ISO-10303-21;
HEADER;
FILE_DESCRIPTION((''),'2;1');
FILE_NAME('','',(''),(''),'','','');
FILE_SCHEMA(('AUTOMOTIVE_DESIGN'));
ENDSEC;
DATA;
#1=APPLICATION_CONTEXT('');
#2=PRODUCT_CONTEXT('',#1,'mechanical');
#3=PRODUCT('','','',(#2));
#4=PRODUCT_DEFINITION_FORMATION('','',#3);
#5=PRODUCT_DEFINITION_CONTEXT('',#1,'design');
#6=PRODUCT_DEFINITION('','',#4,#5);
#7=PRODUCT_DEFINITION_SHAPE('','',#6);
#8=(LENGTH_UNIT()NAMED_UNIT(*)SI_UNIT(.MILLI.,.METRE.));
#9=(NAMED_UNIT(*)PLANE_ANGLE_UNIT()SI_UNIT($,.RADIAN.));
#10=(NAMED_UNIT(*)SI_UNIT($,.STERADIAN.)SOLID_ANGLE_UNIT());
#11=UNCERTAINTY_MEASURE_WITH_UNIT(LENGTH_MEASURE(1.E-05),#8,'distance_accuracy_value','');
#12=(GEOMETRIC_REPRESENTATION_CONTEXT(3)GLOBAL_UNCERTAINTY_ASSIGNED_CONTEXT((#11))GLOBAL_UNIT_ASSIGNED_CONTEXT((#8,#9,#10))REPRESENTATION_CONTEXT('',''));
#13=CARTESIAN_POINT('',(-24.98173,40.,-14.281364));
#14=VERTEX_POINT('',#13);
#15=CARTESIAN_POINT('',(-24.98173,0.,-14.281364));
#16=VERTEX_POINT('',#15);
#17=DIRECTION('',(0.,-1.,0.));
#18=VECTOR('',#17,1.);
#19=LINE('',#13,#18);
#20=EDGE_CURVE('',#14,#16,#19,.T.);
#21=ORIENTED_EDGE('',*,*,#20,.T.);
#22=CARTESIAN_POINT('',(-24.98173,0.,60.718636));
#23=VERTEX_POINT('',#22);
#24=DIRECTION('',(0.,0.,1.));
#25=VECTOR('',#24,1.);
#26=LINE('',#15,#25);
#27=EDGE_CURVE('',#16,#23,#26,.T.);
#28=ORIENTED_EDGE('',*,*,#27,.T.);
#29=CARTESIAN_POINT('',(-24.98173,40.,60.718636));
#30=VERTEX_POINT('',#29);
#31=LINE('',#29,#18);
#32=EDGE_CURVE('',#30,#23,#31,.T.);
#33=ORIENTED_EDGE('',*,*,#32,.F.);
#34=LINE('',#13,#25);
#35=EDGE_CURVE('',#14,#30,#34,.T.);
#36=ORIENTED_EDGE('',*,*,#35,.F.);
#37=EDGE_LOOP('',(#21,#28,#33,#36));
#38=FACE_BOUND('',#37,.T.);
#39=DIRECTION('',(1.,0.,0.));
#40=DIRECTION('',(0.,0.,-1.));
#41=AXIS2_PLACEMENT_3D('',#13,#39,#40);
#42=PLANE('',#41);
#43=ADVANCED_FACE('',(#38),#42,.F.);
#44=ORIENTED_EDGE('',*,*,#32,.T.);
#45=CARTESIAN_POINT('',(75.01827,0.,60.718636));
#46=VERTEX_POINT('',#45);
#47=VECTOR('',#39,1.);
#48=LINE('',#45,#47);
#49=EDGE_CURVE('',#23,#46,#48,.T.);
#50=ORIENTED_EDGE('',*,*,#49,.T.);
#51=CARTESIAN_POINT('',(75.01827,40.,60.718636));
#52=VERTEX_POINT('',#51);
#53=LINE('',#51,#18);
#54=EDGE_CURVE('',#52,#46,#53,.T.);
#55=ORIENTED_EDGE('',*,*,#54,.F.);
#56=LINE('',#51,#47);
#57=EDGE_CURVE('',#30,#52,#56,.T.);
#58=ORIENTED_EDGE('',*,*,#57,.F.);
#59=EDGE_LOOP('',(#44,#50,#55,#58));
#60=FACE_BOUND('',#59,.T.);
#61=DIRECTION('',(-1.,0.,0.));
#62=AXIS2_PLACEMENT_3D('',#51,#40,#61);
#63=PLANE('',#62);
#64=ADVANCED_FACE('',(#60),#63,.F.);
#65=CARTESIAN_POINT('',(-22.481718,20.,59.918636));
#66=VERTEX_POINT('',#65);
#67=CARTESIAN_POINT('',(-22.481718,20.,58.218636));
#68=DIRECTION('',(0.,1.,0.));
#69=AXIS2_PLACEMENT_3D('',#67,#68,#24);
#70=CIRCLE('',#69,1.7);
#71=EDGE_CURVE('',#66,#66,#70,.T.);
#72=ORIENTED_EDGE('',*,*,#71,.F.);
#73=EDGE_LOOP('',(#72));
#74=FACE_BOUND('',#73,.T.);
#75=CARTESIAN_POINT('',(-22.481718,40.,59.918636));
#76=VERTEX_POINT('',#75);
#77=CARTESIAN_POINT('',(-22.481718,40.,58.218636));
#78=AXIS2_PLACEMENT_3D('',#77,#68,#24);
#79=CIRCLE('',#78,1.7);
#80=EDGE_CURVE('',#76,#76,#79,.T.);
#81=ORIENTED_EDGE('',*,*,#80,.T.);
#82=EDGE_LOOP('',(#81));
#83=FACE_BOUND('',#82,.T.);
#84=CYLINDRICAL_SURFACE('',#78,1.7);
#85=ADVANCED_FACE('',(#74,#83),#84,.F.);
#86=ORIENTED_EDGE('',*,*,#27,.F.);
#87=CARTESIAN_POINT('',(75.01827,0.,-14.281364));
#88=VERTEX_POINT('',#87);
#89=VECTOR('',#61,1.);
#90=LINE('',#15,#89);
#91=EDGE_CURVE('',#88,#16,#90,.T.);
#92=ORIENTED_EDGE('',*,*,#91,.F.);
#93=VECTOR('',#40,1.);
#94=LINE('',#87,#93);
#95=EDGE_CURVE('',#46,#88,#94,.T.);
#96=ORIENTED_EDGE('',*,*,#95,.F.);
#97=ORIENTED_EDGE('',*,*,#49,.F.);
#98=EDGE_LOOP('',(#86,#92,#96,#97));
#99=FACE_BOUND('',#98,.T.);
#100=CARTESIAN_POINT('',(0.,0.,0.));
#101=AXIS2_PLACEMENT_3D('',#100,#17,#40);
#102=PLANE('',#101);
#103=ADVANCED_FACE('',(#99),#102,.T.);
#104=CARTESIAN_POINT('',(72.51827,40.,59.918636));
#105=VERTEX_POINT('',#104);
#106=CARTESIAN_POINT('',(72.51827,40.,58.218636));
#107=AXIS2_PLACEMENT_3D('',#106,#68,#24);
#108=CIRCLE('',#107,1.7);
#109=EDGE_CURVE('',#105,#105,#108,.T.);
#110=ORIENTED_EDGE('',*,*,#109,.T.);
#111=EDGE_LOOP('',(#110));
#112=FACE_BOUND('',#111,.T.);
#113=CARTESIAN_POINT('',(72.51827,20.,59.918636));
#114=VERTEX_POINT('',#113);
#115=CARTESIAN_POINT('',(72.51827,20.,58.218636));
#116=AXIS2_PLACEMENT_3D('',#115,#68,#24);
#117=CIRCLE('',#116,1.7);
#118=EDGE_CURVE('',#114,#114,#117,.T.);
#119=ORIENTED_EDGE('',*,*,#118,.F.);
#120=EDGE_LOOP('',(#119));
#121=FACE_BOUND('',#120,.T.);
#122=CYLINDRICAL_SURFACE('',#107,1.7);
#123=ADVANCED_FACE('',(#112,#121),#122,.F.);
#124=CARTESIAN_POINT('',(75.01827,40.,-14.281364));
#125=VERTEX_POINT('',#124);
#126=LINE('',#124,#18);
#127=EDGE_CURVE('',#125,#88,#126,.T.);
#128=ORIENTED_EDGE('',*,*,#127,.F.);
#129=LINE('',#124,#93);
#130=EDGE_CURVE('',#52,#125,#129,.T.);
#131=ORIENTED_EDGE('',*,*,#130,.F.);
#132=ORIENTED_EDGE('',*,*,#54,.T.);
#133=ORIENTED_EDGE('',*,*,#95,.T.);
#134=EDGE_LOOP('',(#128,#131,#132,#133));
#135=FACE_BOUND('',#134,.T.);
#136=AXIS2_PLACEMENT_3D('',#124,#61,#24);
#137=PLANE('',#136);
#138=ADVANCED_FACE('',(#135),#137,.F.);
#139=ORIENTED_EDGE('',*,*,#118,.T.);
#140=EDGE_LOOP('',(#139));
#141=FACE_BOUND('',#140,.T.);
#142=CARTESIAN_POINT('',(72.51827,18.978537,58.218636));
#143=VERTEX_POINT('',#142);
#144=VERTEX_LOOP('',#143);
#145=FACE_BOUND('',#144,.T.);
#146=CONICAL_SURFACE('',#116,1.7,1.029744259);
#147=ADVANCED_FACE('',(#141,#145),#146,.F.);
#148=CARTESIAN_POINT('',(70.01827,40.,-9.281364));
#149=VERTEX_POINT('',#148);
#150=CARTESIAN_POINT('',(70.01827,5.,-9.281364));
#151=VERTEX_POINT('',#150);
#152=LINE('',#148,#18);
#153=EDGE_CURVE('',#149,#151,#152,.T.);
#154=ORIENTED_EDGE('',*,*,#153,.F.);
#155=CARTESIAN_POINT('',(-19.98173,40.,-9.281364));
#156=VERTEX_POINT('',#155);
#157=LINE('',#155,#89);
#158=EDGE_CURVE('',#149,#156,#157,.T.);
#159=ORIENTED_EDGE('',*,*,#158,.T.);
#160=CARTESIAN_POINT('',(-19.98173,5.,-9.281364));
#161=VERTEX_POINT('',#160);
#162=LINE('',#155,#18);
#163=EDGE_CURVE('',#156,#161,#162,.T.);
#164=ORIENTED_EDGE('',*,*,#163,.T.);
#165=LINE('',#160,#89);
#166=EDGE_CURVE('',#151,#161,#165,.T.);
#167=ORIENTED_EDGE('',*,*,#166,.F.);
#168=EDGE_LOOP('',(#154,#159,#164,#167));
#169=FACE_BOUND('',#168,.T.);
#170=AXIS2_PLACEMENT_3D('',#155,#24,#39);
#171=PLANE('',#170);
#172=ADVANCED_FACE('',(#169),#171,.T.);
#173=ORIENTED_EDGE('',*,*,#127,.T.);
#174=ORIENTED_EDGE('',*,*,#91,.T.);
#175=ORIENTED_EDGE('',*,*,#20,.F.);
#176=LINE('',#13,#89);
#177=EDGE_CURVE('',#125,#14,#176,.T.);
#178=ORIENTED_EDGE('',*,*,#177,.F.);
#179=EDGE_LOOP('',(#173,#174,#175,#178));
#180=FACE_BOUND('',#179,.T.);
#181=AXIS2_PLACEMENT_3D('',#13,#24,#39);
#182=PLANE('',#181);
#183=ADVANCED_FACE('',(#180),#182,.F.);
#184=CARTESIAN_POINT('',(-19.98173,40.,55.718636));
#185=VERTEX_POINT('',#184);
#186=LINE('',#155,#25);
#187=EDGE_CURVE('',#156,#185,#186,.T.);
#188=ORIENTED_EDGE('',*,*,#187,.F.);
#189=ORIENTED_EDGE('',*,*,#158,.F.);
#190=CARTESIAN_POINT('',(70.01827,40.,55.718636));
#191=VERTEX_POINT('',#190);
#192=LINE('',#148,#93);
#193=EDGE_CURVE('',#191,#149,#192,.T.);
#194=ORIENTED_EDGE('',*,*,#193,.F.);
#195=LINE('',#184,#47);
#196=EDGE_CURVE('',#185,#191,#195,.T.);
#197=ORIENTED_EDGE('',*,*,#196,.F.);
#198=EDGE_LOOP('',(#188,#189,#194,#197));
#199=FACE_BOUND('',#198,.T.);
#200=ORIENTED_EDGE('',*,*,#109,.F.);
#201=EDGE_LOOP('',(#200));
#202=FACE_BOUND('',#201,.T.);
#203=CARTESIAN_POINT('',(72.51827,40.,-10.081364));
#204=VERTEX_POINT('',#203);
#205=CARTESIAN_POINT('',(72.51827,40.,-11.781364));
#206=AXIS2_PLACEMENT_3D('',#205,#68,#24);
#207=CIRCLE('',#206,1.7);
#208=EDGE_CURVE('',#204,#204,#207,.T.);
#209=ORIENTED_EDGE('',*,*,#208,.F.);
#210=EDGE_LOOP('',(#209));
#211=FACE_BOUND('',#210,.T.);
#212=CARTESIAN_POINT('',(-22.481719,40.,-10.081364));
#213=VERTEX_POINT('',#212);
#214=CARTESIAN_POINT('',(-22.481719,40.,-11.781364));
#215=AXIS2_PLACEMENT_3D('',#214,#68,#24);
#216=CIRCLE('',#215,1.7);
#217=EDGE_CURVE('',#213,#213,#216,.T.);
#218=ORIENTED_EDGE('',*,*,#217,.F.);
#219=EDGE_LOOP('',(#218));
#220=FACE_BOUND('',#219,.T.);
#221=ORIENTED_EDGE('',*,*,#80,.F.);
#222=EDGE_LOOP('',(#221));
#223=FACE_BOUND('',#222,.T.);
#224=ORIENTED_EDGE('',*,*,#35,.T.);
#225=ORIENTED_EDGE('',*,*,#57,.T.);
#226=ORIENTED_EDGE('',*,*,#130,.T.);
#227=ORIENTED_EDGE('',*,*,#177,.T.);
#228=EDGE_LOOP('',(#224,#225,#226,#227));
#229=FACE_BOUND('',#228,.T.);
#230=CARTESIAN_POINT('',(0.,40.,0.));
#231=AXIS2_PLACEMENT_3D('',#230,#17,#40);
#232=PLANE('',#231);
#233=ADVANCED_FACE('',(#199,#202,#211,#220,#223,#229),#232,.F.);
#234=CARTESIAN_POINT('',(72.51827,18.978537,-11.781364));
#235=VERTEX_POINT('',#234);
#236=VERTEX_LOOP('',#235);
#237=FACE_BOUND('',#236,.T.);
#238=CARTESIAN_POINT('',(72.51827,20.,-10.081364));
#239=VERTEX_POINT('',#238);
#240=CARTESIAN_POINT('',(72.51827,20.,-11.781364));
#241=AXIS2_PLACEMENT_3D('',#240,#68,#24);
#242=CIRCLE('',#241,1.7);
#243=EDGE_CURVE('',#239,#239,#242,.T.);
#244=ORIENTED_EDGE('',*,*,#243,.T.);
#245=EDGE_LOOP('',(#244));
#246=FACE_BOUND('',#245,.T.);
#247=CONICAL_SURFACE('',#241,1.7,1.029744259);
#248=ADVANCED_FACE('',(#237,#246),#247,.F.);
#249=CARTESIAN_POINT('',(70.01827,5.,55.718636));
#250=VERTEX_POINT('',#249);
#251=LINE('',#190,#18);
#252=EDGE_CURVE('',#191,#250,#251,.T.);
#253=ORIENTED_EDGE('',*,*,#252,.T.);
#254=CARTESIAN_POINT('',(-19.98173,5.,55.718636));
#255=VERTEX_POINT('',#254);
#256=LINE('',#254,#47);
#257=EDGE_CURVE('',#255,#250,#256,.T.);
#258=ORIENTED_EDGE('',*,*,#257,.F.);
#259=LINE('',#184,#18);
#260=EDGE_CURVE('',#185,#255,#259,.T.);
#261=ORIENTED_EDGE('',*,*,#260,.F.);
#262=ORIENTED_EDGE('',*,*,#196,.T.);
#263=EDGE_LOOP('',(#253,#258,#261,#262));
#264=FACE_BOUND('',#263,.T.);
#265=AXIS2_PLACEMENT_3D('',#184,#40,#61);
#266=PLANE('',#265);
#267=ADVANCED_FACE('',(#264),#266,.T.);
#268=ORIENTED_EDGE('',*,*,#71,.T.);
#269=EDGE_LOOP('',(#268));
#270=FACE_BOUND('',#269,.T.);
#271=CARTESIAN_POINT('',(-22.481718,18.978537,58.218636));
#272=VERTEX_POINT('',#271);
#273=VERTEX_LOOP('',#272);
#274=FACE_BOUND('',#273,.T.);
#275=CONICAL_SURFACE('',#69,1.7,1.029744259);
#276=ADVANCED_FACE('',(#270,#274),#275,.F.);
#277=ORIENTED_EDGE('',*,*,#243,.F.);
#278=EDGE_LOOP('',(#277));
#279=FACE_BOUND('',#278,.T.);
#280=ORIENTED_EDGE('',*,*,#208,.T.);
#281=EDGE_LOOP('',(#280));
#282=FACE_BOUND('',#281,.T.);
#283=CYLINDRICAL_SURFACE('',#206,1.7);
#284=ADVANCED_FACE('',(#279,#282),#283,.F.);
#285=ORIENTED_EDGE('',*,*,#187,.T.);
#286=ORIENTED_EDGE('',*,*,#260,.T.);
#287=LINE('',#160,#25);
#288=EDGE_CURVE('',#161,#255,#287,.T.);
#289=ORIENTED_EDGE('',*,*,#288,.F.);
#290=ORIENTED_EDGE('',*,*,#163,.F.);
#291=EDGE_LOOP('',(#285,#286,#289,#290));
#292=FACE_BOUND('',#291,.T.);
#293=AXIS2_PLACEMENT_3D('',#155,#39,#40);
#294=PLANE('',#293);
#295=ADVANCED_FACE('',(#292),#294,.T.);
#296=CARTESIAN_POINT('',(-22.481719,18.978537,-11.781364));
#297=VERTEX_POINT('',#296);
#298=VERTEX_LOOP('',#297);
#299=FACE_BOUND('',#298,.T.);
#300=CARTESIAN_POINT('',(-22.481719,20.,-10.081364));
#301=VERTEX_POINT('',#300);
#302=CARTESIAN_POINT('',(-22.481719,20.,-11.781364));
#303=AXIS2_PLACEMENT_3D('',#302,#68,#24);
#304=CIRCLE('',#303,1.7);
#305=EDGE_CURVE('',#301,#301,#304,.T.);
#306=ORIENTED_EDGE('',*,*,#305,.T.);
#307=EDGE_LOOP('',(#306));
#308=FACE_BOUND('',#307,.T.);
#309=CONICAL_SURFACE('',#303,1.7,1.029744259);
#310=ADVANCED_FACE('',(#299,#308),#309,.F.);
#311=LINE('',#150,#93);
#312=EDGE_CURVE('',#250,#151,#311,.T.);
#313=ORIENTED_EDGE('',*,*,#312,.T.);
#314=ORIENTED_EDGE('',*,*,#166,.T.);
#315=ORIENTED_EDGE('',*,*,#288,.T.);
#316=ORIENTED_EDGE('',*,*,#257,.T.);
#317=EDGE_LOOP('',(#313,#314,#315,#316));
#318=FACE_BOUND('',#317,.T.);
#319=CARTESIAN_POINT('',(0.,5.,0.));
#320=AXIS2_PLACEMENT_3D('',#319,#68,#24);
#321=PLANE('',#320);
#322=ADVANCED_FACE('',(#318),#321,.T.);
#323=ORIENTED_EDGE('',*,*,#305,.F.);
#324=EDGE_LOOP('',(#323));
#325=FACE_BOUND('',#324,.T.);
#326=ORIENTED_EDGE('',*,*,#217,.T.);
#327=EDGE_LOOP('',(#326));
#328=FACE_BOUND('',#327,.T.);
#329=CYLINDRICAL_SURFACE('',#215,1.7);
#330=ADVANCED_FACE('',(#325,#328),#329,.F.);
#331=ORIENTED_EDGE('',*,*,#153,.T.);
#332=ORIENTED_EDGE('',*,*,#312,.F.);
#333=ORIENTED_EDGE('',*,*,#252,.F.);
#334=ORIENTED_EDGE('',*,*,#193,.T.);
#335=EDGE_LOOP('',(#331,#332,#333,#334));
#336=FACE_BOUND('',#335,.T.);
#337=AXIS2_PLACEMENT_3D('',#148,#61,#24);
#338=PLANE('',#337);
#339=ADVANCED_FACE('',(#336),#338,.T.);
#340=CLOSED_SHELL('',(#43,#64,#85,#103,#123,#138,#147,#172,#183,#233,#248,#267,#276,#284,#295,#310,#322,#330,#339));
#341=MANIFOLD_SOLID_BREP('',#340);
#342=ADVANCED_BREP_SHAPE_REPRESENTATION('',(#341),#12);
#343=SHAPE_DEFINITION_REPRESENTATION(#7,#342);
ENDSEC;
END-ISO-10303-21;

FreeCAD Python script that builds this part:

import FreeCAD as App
import Part
import Sketcher
from FreeCAD import Vector
Q = App.Units.Quantity

doc = App.newDocument("Part")
params = doc.addObject("Spreadsheet::Sheet", "Params")
for row, (alias, value) in enumerate([
    ("sketch1_width", "100 mm"),
    ("sketch1_height", "75 mm"),
    ("pad1_length", "40 mm"),
    ("sketch2_width", "90 mm"),
    ("sketch2_height", "65 mm"),
    ("sketch3_width", "90 mm"),
    ("sketch3_height", "65 mm"),
    ("pad2_length", "5 mm"),
    ("sketch4_diameter", "3.4 mm"),
    ("hole_diameter", "3.4 mm"),
    ("hole_depth", "20 mm"),
], start=1):
    params.set(f"A{row}", alias)
    params.set(f"B{row}", "=" + value)
    params.setAlias(f"B{row}", alias)

body = doc.addObject("PartDesign::Body", "Body")

# Sketch on XZ plane
sketch1 = doc.addObject("Sketcher::SketchObject", "Sketch")
body.addObject(sketch1)
sketch1.AttachmentSupport = (doc.XZ_Plane, [""])
sketch1.MapMode = "FlatFace"
sketch1.addGeometry([
    Part.LineSegment(Vector(-24.98173, -14.281364, 0), Vector(-24.98173, 60.718636, 0)),
    Part.LineSegment(Vector(-24.98173, 60.718636, 0), Vector(75.01827, 60.718636, 0)),
    Part.LineSegment(Vector(75.01827, 60.718636, 0), Vector(75.01827, -14.281364, 0)),
    Part.LineSegment(Vector(75.01827, -14.281364, 0), Vector(-24.98173, -14.281364, 0)),
], False)
sketch1.addConstraint([
    Sketcher.Constraint("Coincident", 0, 2, 1, 1),
    Sketcher.Constraint("Coincident", 1, 2, 2, 1),
    Sketcher.Constraint("Coincident", 2, 2, 3, 1),
    Sketcher.Constraint("Coincident", 3, 2, 0, 1),
    Sketcher.Constraint("Vertical", 0),
    Sketcher.Constraint("Horizontal", 1),
    Sketcher.Constraint("Vertical", 2),
    Sketcher.Constraint("Horizontal", 3),
    Sketcher.Constraint("DistanceX", 1, 1, 1, 2, Q("100 mm")),
    Sketcher.Constraint("DistanceY", 0, 1, 0, 2, Q("75 mm")),
    Sketcher.Constraint("DistanceX", 0, 2, -1, 1, Q("24.98173 mm")),
    Sketcher.Constraint("DistanceY", -1, 1, 0, 2, Q("60.718636 mm")),
])
sketch1.setExpression("Constraints[8]", "Params.sketch1_width")
sketch1.setExpression("Constraints[9]", "Params.sketch1_height")
pad1 = doc.addObject("PartDesign::Pad", "Pad")
body.addObject(pad1)
pad1.Profile = sketch1
pad1.setExpression("Length", "Params.pad1_length")
pad1.Reversed = True

# Sketch on XZ plane
sketch2 = doc.addObject("Sketcher::SketchObject", "Sketch001")
body.addObject(sketch2)
sketch2.AttachmentSupport = (doc.XZ_Plane, [""])
sketch2.MapMode = "FlatFace"
sketch2.addGeometry([
    Part.LineSegment(Vector(-19.98173, -9.281364, 0), Vector(-19.98173, 55.718636, 0)),
    Part.LineSegment(Vector(-19.98173, 55.718636, 0), Vector(70.01827, 55.718636, 0)),
    Part.LineSegment(Vector(70.01827, 55.718636, 0), Vector(70.01827, -9.281364, 0)),
    Part.LineSegment(Vector(70.01827, -9.281364, 0), Vector(-19.98173, -9.281364, 0)),
], False)
sketch2.addConstraint([
    Sketcher.Constraint("Coincident", 0, 2, 1, 1),
    Sketcher.Constraint("Coincident", 1, 2, 2, 1),
    Sketcher.Constraint("Coincident", 2, 2, 3, 1),
    Sketcher.Constraint("Coincident", 3, 2, 0, 1),
    Sketcher.Constraint("Vertical", 0),
    Sketcher.Constraint("Horizontal", 1),
    Sketcher.Constraint("Vertical", 2),
    Sketcher.Constraint("Horizontal", 3),
    Sketcher.Constraint("DistanceX", 1, 1, 1, 2, Q("90 mm")),
    Sketcher.Constraint("DistanceY", 0, 1, 0, 2, Q("65 mm")),
    Sketcher.Constraint("DistanceX", 0, 2, -1, 1, Q("19.98173 mm")),
    Sketcher.Constraint("DistanceY", -1, 1, 0, 2, Q("55.718636 mm")),
])
sketch2.setExpression("Constraints[8]", "Params.sketch2_width")
sketch2.setExpression("Constraints[9]", "Params.sketch2_height")
pocket1 = doc.addObject("PartDesign::Pocket", "Pocket")
body.addObject(pocket1)
pocket1.Profile = sketch2
pocket1.Type = "ThroughAll"

# Sketch on XZ plane
sketch3 = doc.addObject("Sketcher::SketchObject", "Sketch002")
body.addObject(sketch3)
sketch3.AttachmentSupport = (doc.XZ_Plane, [""])
sketch3.MapMode = "FlatFace"
sketch3.addGeometry([
    Part.LineSegment(Vector(-19.98173, -9.281364, 0), Vector(-19.98173, 55.718636, 0)),
    Part.LineSegment(Vector(-19.98173, 55.718636, 0), Vector(70.01827, 55.718636, 0)),
    Part.LineSegment(Vector(70.01827, 55.718636, 0), Vector(70.01827, -9.281364, 0)),
    Part.LineSegment(Vector(70.01827, -9.281364, 0), Vector(-19.98173, -9.281364, 0)),
], False)
sketch3.addConstraint([
    Sketcher.Constraint("Coincident", 0, 2, 1, 1),
    Sketcher.Constraint("Coincident", 1, 2, 2, 1),
    Sketcher.Constraint("Coincident", 2, 2, 3, 1),
    Sketcher.Constraint("Coincident", 3, 2, 0, 1),
    Sketcher.Constraint("Vertical", 0),
    Sketcher.Constraint("Horizontal", 1),
    Sketcher.Constraint("Vertical", 2),
    Sketcher.Constraint("Horizontal", 3),
    Sketcher.Constraint("DistanceX", 1, 1, 1, 2, Q("90 mm")),
    Sketcher.Constraint("DistanceY", 0, 1, 0, 2, Q("65 mm")),
    Sketcher.Constraint("DistanceX", 0, 2, -1, 1, Q("19.98173 mm")),
    Sketcher.Constraint("DistanceY", -1, 1, 0, 2, Q("55.718636 mm")),
])
sketch3.setExpression("Constraints[8]", "Params.sketch3_width")
sketch3.setExpression("Constraints[9]", "Params.sketch3_height")
pad2 = doc.addObject("PartDesign::Pad", "Pad001")
body.addObject(pad2)
pad2.Profile = sketch3
pad2.setExpression("Length", "Params.pad2_length")
pad2.Reversed = True

# Sketch on XZ plane
sketch4 = doc.addObject("Sketcher::SketchObject", "Sketch003")
body.addObject(sketch4)
sketch4.AttachmentSupport = (doc.XZ_Plane, [""])
sketch4.MapMode = "FlatFace"
sketch4.AttachmentOffset = App.Placement(Vector(0, 0, -40), App.Rotation())
sketch4.addGeometry([
    Part.Circle(Vector(-22.481719, -11.781364, 0), Vector(0, 0, 1), 1.7),
    Part.Circle(Vector(72.51827, -11.781364, 0), Vector(0, 0, 1), 1.7),
    Part.Circle(Vector(72.51827, 58.218636, 0), Vector(0, 0, 1), 1.7),
    Part.Circle(Vector(-22.481718, 58.218636, 0), Vector(0, 0, 1), 1.7),
], False)
sketch4.addConstraint([
    Sketcher.Constraint("Equal", 0, 1),
    Sketcher.Constraint("Equal", 1, 2),
    Sketcher.Constraint("Equal", 2, 3),
    Sketcher.Constraint("Horizontal", 0, 3, 1, 3),
    Sketcher.Constraint("Horizontal", 2, 3, 3, 3),
    Sketcher.Constraint("Vertical", 1, 3, 2, 3),
    Sketcher.Constraint("Vertical", 0, 3, 3, 3),
    Sketcher.Constraint("Diameter", 0, Q("3.4 mm")),
    Sketcher.Constraint("DistanceY", 1, 3, 2, 3, Q("70 mm")),
    Sketcher.Constraint("DistanceX", 0, 3, -1, 1, Q("22.481719 mm")),
    Sketcher.Constraint("DistanceX", -1, 1, 1, 3, Q("72.51827 mm")),
    Sketcher.Constraint("DistanceY", 0, 3, -1, 1, Q("11.781364 mm")),
])
sketch4.setExpression("Constraints[7]", "Params.sketch4_diameter")
doc.recompute()
hole = doc.addObject("PartDesign::Hole", "Hole")
body.addObject(hole)
hole.Profile = sketch4
hole.ThreadType = "None"
hole.setExpression("Diameter", "Params.hole_diameter")
hole.DepthType = "Dimension"
hole.setExpression("Depth", "Params.hole_depth")
hole.DrillPoint = "Angled"
hole.DrillPointAngle = 118
hole.Reversed = True

doc.recompute()
